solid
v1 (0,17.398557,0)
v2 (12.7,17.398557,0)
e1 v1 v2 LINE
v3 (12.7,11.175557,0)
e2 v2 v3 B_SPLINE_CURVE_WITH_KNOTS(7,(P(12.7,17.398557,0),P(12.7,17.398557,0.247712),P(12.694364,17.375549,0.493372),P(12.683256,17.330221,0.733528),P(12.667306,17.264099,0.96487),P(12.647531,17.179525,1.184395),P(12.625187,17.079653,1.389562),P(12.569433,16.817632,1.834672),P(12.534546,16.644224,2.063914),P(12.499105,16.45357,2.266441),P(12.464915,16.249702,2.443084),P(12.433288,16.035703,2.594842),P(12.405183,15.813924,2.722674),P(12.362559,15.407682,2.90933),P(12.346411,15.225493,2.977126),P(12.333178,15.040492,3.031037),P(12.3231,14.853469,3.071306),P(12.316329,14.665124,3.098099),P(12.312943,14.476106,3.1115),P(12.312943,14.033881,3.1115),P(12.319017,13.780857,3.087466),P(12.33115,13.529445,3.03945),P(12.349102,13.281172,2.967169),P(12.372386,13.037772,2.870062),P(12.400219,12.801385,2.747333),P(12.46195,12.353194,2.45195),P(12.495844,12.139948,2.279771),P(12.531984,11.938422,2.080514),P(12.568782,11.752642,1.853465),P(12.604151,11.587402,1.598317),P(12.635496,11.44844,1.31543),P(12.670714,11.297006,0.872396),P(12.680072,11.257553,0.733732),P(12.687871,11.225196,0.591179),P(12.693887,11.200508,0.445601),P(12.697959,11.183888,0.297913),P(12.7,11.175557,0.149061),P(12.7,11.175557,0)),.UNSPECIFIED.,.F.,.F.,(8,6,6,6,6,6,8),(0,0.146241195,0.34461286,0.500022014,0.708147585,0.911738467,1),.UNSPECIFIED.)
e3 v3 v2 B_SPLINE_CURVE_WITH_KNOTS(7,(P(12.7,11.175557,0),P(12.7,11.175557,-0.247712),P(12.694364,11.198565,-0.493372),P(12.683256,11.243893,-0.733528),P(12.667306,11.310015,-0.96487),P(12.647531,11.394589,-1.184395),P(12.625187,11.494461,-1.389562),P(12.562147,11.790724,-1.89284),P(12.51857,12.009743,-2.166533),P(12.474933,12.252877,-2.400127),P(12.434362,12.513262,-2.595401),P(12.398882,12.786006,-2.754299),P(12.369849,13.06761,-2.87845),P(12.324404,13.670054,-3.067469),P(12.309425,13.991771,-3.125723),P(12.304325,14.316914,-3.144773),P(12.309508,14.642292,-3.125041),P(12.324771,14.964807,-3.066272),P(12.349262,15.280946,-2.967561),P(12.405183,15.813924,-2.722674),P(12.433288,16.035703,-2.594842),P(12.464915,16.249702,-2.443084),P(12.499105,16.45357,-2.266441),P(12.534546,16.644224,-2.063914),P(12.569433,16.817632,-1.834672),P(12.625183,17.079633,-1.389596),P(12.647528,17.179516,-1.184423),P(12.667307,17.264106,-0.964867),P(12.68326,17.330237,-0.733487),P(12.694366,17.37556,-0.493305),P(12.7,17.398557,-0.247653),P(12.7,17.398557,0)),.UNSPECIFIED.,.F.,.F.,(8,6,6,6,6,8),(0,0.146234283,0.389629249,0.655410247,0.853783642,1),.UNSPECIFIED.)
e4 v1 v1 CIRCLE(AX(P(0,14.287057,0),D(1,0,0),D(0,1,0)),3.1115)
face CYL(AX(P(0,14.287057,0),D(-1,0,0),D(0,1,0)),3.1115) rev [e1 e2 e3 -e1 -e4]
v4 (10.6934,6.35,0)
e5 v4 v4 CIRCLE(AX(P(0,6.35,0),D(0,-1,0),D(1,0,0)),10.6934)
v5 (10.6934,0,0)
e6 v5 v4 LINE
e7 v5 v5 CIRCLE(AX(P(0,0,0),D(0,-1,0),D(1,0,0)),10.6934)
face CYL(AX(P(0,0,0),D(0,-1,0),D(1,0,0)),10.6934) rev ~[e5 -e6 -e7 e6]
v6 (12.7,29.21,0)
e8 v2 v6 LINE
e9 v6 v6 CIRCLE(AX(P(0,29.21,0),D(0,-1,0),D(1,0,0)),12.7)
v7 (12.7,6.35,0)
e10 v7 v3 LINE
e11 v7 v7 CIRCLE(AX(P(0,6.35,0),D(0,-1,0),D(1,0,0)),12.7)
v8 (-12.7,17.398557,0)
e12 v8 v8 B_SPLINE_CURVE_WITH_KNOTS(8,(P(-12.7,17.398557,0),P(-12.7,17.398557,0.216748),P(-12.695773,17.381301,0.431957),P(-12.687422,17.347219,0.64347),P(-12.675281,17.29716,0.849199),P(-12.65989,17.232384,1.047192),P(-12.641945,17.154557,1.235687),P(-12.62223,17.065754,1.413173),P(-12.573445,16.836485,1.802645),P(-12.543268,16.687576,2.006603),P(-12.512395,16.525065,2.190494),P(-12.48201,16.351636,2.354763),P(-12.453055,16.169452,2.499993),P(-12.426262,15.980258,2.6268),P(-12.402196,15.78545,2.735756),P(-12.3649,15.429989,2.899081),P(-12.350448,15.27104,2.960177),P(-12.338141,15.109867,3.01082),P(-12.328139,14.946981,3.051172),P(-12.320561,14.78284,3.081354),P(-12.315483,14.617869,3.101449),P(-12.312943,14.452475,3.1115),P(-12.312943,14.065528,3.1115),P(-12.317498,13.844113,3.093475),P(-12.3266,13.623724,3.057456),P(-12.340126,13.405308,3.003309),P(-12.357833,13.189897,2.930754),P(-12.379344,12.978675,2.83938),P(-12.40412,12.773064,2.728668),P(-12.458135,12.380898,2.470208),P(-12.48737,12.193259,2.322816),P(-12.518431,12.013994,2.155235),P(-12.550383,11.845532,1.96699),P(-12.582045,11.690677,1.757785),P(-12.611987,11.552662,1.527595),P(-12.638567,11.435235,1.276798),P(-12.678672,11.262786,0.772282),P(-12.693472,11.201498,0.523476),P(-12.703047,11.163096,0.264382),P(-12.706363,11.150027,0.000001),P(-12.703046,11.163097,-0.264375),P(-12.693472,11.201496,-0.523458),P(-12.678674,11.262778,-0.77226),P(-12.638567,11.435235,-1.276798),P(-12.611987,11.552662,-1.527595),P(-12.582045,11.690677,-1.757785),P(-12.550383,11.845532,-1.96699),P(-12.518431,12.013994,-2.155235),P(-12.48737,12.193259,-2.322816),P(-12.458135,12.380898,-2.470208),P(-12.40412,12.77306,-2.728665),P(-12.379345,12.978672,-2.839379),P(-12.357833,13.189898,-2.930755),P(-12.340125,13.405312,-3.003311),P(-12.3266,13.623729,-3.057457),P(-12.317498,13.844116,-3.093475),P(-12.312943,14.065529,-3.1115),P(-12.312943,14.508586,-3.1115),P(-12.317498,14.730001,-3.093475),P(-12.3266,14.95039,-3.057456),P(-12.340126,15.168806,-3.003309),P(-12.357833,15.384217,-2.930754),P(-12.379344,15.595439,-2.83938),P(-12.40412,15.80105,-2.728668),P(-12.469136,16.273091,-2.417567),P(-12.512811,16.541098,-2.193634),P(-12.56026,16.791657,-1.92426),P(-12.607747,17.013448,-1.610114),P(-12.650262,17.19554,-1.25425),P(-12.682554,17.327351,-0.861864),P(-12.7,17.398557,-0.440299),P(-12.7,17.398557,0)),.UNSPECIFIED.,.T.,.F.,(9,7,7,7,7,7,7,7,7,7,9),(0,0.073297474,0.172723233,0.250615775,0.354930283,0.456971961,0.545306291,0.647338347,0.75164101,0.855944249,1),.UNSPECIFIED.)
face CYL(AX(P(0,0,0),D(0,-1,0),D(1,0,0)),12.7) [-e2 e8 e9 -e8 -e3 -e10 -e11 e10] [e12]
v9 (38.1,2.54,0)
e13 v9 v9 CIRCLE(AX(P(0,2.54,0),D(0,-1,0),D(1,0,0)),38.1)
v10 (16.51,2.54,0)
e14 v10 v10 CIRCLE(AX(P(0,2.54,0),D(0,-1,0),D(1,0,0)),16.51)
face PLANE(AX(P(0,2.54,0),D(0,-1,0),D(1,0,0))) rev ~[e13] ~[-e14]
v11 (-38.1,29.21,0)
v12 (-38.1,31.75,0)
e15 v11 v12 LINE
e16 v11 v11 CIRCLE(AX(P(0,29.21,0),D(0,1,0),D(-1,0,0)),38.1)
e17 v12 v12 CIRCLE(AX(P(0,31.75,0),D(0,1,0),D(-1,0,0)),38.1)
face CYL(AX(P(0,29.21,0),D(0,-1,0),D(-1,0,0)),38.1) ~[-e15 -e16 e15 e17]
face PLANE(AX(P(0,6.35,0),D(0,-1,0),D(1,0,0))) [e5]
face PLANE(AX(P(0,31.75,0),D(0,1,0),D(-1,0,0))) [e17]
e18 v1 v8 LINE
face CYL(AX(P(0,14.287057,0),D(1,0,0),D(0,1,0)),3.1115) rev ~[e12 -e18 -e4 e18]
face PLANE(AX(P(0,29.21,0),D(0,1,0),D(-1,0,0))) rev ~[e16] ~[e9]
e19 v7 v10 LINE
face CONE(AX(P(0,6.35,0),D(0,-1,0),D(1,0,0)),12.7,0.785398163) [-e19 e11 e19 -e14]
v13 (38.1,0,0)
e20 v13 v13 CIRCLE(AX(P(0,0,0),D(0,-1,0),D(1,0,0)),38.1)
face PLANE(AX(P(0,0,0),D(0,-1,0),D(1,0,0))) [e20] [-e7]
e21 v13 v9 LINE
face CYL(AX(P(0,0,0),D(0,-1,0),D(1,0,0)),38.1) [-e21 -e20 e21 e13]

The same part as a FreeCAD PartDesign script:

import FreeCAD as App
import Part
import Sketcher

V = App.Vector
Q = App.Units.Quantity


def edges_at(feature, points):
    """Names of the edges that pass closest to the given points."""
    edges = feature.Shape.Edges
    near = lambda p: min(range(len(edges)), key=lambda i: edges[i].distToShape(Part.Vertex(*p))[0])
    return sorted({f"Edge{near(p) + 1}" for p in points})

doc = App.newDocument("Part")
body = doc.addObject("PartDesign::Body", "Body")

sketch1 = body.newObject("Sketcher::SketchObject", "Sketch")
sketch1.AttachmentSupport = (doc.getObject("XZ_Plane"), [""])
sketch1.MapMode = "FlatFace"
sketch1.addGeometry(Part.Circle(V(0, 0, 0), V(0, 0, 1), 38), False)
sketch1.addConstraint(Sketcher.Constraint("Coincident", 0, 3, -1, 1))
sketch1.addConstraint(Sketcher.Constraint("Diameter", 0, Q("3 in")))
pad1 = body.newObject("PartDesign::Pad", "Pad")
pad1.Profile = sketch1
pad1.Length = Q("0.1 in")
pad1.Reversed = True

sketch2 = body.newObject("Sketcher::SketchObject", "Sketch001")
sketch2.AttachmentSupport = (doc.getObject("XZ_Plane"), [""])
sketch2.MapMode = "FlatFace"
sketch2.addGeometry(Part.Circle(V(0, 0, 0), V(0, 0, 1), 13), False)
sketch2.addConstraint(Sketcher.Constraint("Coincident", 0, 3, -1, 1))
sketch2.addConstraint(Sketcher.Constraint("Diameter", 0, Q("1 in")))
pad2 = body.newObject("PartDesign::Pad", "Pad001")
pad2.Profile = sketch2
pad2.Length = Q("1.15 in")
pad2.Reversed = True

sketch3 = body.newObject("Sketcher::SketchObject", "Sketch002")
sketch3.AttachmentSupport = (doc.getObject("XZ_Plane"), [""])
sketch3.MapMode = "FlatFace"
sketch3.addGeometry(Part.Circle(V(0, 0, 0), V(0, 0, 1), 11), False)
sketch3.addConstraint(Sketcher.Constraint("Coincident", 0, 3, -1, 1))
sketch3.addConstraint(Sketcher.Constraint("Diameter", 0, Q("0.842 in")))
pocket1 = body.newObject("PartDesign::Pocket", "Pocket")
pocket1.Profile = sketch3
pocket1.Length = Q("0.25 in")

sketch4 = body.newObject("Sketcher::SketchObject", "Sketch003")
sketch4.AttachmentSupport = (doc.getObject("XZ_Plane"), [""])
sketch4.MapMode = "FlatFace"
sketch4.AttachmentOffset = App.Placement(V(0, 0, -1.15 * 25.4), App.Rotation())
sketch4.addGeometry(Part.Circle(V(0, 0, 0), V(0, 0, 1), 38), False)
sketch4.addConstraint(Sketcher.Constraint("Coincident", 0, 3, -1, 1))
sketch4.addConstraint(Sketcher.Constraint("Diameter", 0, Q("3 in")))
pad3 = body.newObject("PartDesign::Pad", "Pad002")
pad3.Profile = sketch4
pad3.Length = Q("0.1 in")
pad3.Reversed = True

sketch5 = body.newObject("Sketcher::SketchObject", "Sketch004")
sketch5.AttachmentSupport = (doc.getObject("YZ_Plane"), [""])
sketch5.MapMode = "FlatFace"
sketch5.addGeometry(Part.Circle(V(14.3, 0, 0), V(0, 0, 1), 3.1), False)
sketch5.addConstraint(Sketcher.Constraint("PointOnObject", 0, 3, -1))
sketch5.addConstraint(Sketcher.Constraint("Diameter", 0, Q("0.245 in")))
sketch5.addConstraint(Sketcher.Constraint("DistanceX", -1, 1, 0, 3, 14.287057))
pocket2 = body.newObject("PartDesign::Pocket", "Pocket001")
pocket2.Profile = sketch5
pocket2.Type = "ThroughAll"
pocket2.Midplane = True
doc.recompute()

chamfer = body.newObject("PartDesign::Chamfer", "Chamfer")
chamfer.Base = (pocket2, edges_at(pocket2, [(-12.7, 2.54, 0)]))
chamfer.Size = Q("0.15 in")

doc.recompute()
